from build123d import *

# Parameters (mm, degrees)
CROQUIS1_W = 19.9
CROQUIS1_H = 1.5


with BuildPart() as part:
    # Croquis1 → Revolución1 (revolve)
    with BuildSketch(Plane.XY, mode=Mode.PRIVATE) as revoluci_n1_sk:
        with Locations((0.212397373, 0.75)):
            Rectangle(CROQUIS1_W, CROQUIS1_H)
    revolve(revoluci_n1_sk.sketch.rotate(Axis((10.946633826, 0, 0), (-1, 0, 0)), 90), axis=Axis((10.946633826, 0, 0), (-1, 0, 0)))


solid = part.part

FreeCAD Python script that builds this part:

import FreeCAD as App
import Part
import Sketcher
from FreeCAD import Vector
Q = App.Units.Quantity

doc = App.newDocument("Part")
params = doc.addObject("Spreadsheet::Sheet", "Params")
for row, (alias, value) in enumerate([
    ("sketch1_width", "19.9 mm"),
    ("sketch1_height", "1.5 mm"),
    ("revolution_angle", "360 deg"),
], start=1):
    params.set(f"A{row}", alias)
    params.set(f"B{row}", "=" + value)
    params.setAlias(f"B{row}", alias)

body = doc.addObject("PartDesign::Body", "Body")

# Sketch on XY plane
sketch1 = body.newObject("Sketcher::SketchObject", "Sketch")
sketch1.AttachmentSupport = (doc.getObject("XY_Plane"), [""])
sketch1.MapMode = "FlatFace"
sketch1.addGeometry([
    Part.LineSegment(Vector(-9.737603, 1.5, 0), Vector(-9.737603, 0, 0)),
    Part.LineSegment(Vector(-9.737603, 0, 0), Vector(10.162397, 0, 0)),
    Part.LineSegment(Vector(10.162397, 0, 0), Vector(10.162397, 1.5, 0)),
    Part.LineSegment(Vector(10.162397, 1.5, 0), Vector(-9.737603, 1.5, 0)),
], False)
sketch1.addConstraint([
    Sketcher.Constraint("Coincident", 0, 2, 1, 1),
    Sketcher.Constraint("Coincident", 1, 2, 2, 1),
    Sketcher.Constraint("Coincident", 2, 2, 3, 1),
    Sketcher.Constraint("Coincident", 3, 2, 0, 1),
    Sketcher.Constraint("Vertical", 0),
    Sketcher.Constraint("Horizontal", 1),
    Sketcher.Constraint("Vertical", 2),
    Sketcher.Constraint("Horizontal", 3),
    Sketcher.Constraint("PointOnObject", 0, 2, -1),
    Sketcher.Constraint("DistanceX", 1, 1, 1, 2, Q("19.9 mm")),
    Sketcher.Constraint("DistanceY", 0, 2, 0, 1, Q("1.5 mm")),
    Sketcher.Constraint("DistanceX", 0, 2, -1, 1, Q("9.737603 mm")),
])
sketch1.setExpression("Constraints[9]", "Params.sketch1_width")
sketch1.setExpression("Constraints[10]", "Params.sketch1_height")
revolution = body.newObject("PartDesign::Revolution", "Revolution")
revolution.Profile = sketch1
revolution.ReferenceAxis = (sketch1, ["H_Axis"])
revolution.setExpression("Angle", "Params.revolution_angle")

doc.recompute()
